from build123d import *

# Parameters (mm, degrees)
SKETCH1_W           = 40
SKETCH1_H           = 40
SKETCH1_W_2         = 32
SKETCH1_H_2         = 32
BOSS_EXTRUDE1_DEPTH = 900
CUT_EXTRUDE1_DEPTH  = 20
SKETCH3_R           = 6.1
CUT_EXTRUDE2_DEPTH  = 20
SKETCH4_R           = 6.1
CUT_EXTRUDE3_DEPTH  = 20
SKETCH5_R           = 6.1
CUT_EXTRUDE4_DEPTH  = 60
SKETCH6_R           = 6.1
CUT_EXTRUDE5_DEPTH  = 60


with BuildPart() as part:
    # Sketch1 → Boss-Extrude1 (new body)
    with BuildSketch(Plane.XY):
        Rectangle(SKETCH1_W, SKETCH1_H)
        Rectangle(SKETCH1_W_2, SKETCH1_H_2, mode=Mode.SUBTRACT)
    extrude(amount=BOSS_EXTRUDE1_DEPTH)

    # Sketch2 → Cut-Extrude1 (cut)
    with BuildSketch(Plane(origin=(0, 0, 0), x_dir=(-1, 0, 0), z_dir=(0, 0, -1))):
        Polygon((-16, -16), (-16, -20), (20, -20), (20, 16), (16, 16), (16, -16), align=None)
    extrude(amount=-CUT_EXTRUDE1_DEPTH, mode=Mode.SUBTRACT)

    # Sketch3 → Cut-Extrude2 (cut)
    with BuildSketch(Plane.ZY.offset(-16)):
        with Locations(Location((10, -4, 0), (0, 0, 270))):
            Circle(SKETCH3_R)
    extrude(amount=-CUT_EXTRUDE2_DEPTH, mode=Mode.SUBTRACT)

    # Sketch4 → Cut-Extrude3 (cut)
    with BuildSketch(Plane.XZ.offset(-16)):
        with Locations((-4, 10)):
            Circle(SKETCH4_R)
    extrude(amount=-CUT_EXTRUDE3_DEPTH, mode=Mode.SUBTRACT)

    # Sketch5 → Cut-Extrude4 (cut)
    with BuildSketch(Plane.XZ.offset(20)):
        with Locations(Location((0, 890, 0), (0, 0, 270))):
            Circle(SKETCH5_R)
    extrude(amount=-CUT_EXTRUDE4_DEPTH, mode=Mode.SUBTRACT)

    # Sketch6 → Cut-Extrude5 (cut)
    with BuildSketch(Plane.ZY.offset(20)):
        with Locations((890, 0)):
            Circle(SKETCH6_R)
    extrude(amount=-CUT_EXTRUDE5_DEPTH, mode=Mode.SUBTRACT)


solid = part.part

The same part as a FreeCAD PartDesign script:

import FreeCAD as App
import Part
import Sketcher

doc = App.newDocument("Part")
params = doc.addObject("Spreadsheet::Sheet", "Params")
for row, (alias, value) in enumerate([
    ("sketch1_width", "40 mm"),
    ("sketch1_width2", "32 mm"),
    ("pad1_length", "900 mm"),
    ("sketch2_width", "36 mm"),
    ("sketch2_width2", "4 mm"),
    ("pocket1_length", "20 mm"),
    ("sketch3_diameter", "12.2 mm"),
    ("pocket2_length", "20 mm"),
    ("sketch4_diameter", "12.2 mm"),
    ("pocket3_length", "20 mm"),
    ("sketch5_diameter", "12.2 mm"),
    ("pocket4_length", "60 mm"),
    ("sketch6_diameter", "12.2 mm"),
    ("pocket5_length", "60 mm"),
], start=1):
    params.set(f"A{row}", alias)
    params.set(f"B{row}", "=" + value)
    params.setAlias(f"B{row}", alias)

body = doc.addObject("PartDesign::Body", "Body")

# Sketch on XY plane
sketch1 = body.newObject("Sketcher::SketchObject", "Sketch")
sketch1.AttachmentSupport = (doc.getObject("XY_Plane"), [""])
sketch1.MapMode = "FlatFace"
sketch1.addGeometry([
    Part.LineSegment(App.Vector(-20, 20, 0), App.Vector(-20, -20, 0)),  # 0
    Part.LineSegment(App.Vector(-20, -20, 0), App.Vector(20, -20, 0)),  # 1
    Part.LineSegment(App.Vector(20, -20, 0), App.Vector(20, 20, 0)),  # 2
    Part.LineSegment(App.Vector(20, 20, 0), App.Vector(-20, 20, 0)),  # 3
    Part.LineSegment(App.Vector(16, -16, 0), App.Vector(-16, -16, 0)),  # 4
    Part.LineSegment(App.Vector(-16, -16, 0), App.Vector(-16, 16, 0)),  # 5
    Part.LineSegment(App.Vector(-16, 16, 0), App.Vector(16, 16, 0)),  # 6
    Part.LineSegment(App.Vector(16, 16, 0), App.Vector(16, -16, 0)),  # 7
], False)
sketch1.addConstraint([
    Sketcher.Constraint("Coincident", 0, 2, 1, 1),
    Sketcher.Constraint("Coincident", 1, 2, 2, 1),
    Sketcher.Constraint("Coincident", 2, 2, 3, 1),
    Sketcher.Constraint("Coincident", 3, 2, 0, 1),
    Sketcher.Constraint("Coincident", 4, 2, 5, 1),
    Sketcher.Constraint("Coincident", 5, 2, 6, 1),
    Sketcher.Constraint("Coincident", 6, 2, 7, 1),
    Sketcher.Constraint("Coincident", 7, 2, 4, 1),
    Sketcher.Constraint("Vertical", 0),
    Sketcher.Constraint("Horizontal", 1),
    Sketcher.Constraint("Vertical", 2),
    Sketcher.Constraint("Horizontal", 3),
    Sketcher.Constraint("Horizontal", 4),
    Sketcher.Constraint("Vertical", 5),
    Sketcher.Constraint("Horizontal", 6),
    Sketcher.Constraint("Vertical", 7),
    Sketcher.Constraint("Symmetric", 0, 2, 2, 2, -1, 1),
    Sketcher.Constraint("Symmetric", 4, 2, 6, 2, -1, 1),
    Sketcher.Constraint("Equal", 3, 0),
    Sketcher.Constraint("Equal", 6, 5),
    Sketcher.Constraint("DistanceX", 1, 1, 1, 2, 40.0),
    Sketcher.Constraint("DistanceX", 4, 2, 4, 1, 32.0),
])
sketch1.setExpression("Constraints[20]", "Params.sketch1_width")
sketch1.setExpression("Constraints[21]", "Params.sketch1_width2")
pad1 = body.newObject("PartDesign::Pad", "Pad")
pad1.Profile = sketch1
pad1.setExpression("Length", "Params.pad1_length")

# Sketch on XY plane
sketch2 = body.newObject("Sketcher::SketchObject", "Sketch001")
sketch2.AttachmentSupport = (doc.getObject("XY_Plane"), [""])
sketch2.MapMode = "FlatFace"
sketch2.addGeometry([
    Part.LineSegment(App.Vector(16, -16, 0), App.Vector(16, -20, 0)),  # 0
    Part.LineSegment(App.Vector(16, -20, 0), App.Vector(-20, -20, 0)),  # 1
    Part.LineSegment(App.Vector(-20, -20, 0), App.Vector(-20, 16, 0)),  # 2
    Part.LineSegment(App.Vector(-20, 16, 0), App.Vector(-16, 16, 0)),  # 3
    Part.LineSegment(App.Vector(-16, 16, 0), App.Vector(-16, -16, 0)),  # 4
    Part.LineSegment(App.Vector(-16, -16, 0), App.Vector(16, -16, 0)),  # 5
], False)
sketch2.addConstraint([
    Sketcher.Constraint("Coincident", 0, 2, 1, 1),
    Sketcher.Constraint("Coincident", 1, 2, 2, 1),
    Sketcher.Constraint("Coincident", 2, 2, 3, 1),
    Sketcher.Constraint("Coincident", 3, 2, 4, 1),
    Sketcher.Constraint("Coincident", 4, 2, 5, 1),
    Sketcher.Constraint("Coincident", 5, 2, 0, 1),
    Sketcher.Constraint("Vertical", 0),
    Sketcher.Constraint("Horizontal", 1),
    Sketcher.Constraint("Vertical", 2),
    Sketcher.Constraint("Horizontal", 3),
    Sketcher.Constraint("Vertical", 4),
    Sketcher.Constraint("Horizontal", 5),
    Sketcher.Constraint("Symmetric", 3, 2, 5, 2, -1, 1),
    Sketcher.Constraint("Equal", 3, 0),
    Sketcher.Constraint("Equal", 1, 2),
    Sketcher.Constraint("DistanceX", 1, 2, 1, 1, 36.0),
    Sketcher.Constraint("DistanceX", 3, 1, 3, 2, 4.0),
])
sketch2.setExpression("Constraints[15]", "Params.sketch2_width")
sketch2.setExpression("Constraints[16]", "Params.sketch2_width2")
pocket1 = body.newObject("PartDesign::Pocket", "Pocket")
pocket1.Profile = sketch2
pocket1.setExpression("Length", "Params.pocket1_length")
pocket1.Reversed = True

# Sketch on YZ plane
sketch3 = body.newObject("Sketcher::SketchObject", "Sketch002")
sketch3.AttachmentSupport = (doc.getObject("YZ_Plane"), [""])
sketch3.MapMode = "FlatFace"
sketch3.AttachmentOffset = App.Placement(App.Vector(0, 0, 16), App.Rotation())
sketch3.addGeometry(Part.Circle(App.Vector(-4, 10, 0), App.Vector(0, 0, 1), 6), False)
sketch3.addConstraint([
    Sketcher.Constraint("Diameter", 0, 12.2),
    Sketcher.Constraint("DistanceX", 0, 3, -1, 1, 4.0),
    Sketcher.Constraint("DistanceY", -1, 1, 0, 3, 10.0),
])
sketch3.setExpression("Constraints[0]", "Params.sketch3_diameter")
pocket2 = body.newObject("PartDesign::Pocket", "Pocket001")
pocket2.Profile = sketch3
pocket2.setExpression("Length", "Params.pocket2_length")
pocket2.Reversed = True

# Sketch on XZ plane
sketch4 = body.newObject("Sketcher::SketchObject", "Sketch003")
sketch4.AttachmentSupport = (doc.getObject("XZ_Plane"), [""])
sketch4.MapMode = "FlatFace"
sketch4.AttachmentOffset = App.Placement(App.Vector(0, 0, -16), App.Rotation())
sketch4.addGeometry(Part.Circle(App.Vector(-4, 10, 0), App.Vector(0, 0, 1), 6), False)
sketch4.addConstraint([
    Sketcher.Constraint("Diameter", 0, 12.2),
    Sketcher.Constraint("DistanceX", 0, 3, -1, 1, 4.0),
    Sketcher.Constraint("DistanceY", -1, 1, 0, 3, 10.0),
])
sketch4.setExpression("Constraints[0]", "Params.sketch4_diameter")
pocket3 = body.newObject("PartDesign::Pocket", "Pocket002")
pocket3.Profile = sketch4
pocket3.setExpression("Length", "Params.pocket3_length")

# Sketch on XZ plane
sketch5 = body.newObject("Sketcher::SketchObject", "Sketch004")
sketch5.AttachmentSupport = (doc.getObject("XZ_Plane"), [""])
sketch5.MapMode = "FlatFace"
sketch5.AttachmentOffset = App.Placement(App.Vector(0, 0, 20), App.Rotation())
sketch5.addGeometry(Part.Circle(App.Vector(0, 890, 0), App.Vector(0, 0, 1), 6), False)
sketch5.addConstraint([
    Sketcher.Constraint("PointOnObject", 0, 3, -2),
    Sketcher.Constraint("Diameter", 0, 12.2),
    Sketcher.Constraint("DistanceY", -1, 1, 0, 3, 890.0),
])
sketch5.setExpression("Constraints[1]", "Params.sketch5_diameter")
pocket4 = body.newObject("PartDesign::Pocket", "Pocket003")
pocket4.Profile = sketch5
pocket4.setExpression("Length", "Params.pocket4_length")

# Sketch on YZ plane
sketch6 = body.newObject("Sketcher::SketchObject", "Sketch005")
sketch6.AttachmentSupport = (doc.getObject("YZ_Plane"), [""])
sketch6.MapMode = "FlatFace"
sketch6.AttachmentOffset = App.Placement(App.Vector(0, 0, -20), App.Rotation())
sketch6.addGeometry(Part.Circle(App.Vector(0, 890, 0), App.Vector(0, 0, 1), 6), False)
sketch6.addConstraint([
    Sketcher.Constraint("PointOnObject", 0, 3, -2),
    Sketcher.Constraint("Diameter", 0, 12.2),
    Sketcher.Constraint("DistanceY", -1, 1, 0, 3, 890.0),
])
sketch6.setExpression("Constraints[1]", "Params.sketch6_diameter")
pocket5 = body.newObject("PartDesign::Pocket", "Pocket004")
pocket5.Profile = sketch6
pocket5.setExpression("Length", "Params.pocket5_length")
pocket5.Reversed = True

doc.recompute()
